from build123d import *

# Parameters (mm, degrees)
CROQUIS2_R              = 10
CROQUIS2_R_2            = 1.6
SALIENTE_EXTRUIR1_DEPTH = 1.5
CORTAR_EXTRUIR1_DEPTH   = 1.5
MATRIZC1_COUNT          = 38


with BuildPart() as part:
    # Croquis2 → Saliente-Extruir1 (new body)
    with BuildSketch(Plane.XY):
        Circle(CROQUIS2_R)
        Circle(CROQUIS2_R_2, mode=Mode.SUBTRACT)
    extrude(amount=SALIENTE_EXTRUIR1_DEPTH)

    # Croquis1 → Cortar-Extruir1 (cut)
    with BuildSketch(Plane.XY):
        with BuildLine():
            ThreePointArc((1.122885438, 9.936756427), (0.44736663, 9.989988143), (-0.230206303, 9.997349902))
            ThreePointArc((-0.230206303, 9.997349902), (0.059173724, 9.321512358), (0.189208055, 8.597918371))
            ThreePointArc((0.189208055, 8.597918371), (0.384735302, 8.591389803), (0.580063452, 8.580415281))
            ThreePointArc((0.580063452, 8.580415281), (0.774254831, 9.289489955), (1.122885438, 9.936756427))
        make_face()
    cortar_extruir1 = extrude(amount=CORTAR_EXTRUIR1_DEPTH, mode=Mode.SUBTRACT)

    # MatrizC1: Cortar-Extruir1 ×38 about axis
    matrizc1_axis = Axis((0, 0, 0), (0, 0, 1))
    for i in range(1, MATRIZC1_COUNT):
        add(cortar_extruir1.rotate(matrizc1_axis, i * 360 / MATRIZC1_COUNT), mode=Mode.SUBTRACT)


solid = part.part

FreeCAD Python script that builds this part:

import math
import FreeCAD as App
import Part
import Sketcher

V = App.Vector

doc = App.newDocument("Part")
body = doc.addObject("PartDesign::Body", "Body")

# Sketch on XY plane
sketch1 = body.newObject("Sketcher::SketchObject", "Sketch")
sketch1.AttachmentSupport = (doc.getObject("XY_Plane"), [""])
sketch1.MapMode = "FlatFace"
sketch1.addGeometry([
    Part.Circle(V(0, 0, 0), V(0, 0, 1), 10),
    Part.Circle(V(0, 0, 0), V(0, 0, 1), 1.6),
], False)
sketch1.addConstraint([
    Sketcher.Constraint("Coincident", 0, 3, -1, 1),
    Sketcher.Constraint("Coincident", 1, 3, -1, 1),
    Sketcher.Constraint("Diameter", 0, 20.0),
    Sketcher.Constraint("Diameter", 1, 3.2),
])
pad1 = body.newObject("PartDesign::Pad", "Pad")
pad1.Profile = sketch1
pad1.Length = 1.5

# Sketch on XY plane
sketch2 = body.newObject("Sketcher::SketchObject", "Sketch001")
sketch2.AttachmentSupport = (doc.getObject("XY_Plane"), [""])
sketch2.MapMode = "FlatFace"
sketch2.addGeometry([
    Part.ArcOfCircle(Part.Circle(V(0, 0, 0), V(0, 0, 1), 10), math.radians(83.552743), math.radians(91.319101)),
    Part.ArcOfCircle(Part.Circle(V(-3.053241, 8.388711, 0), V(0, 0, 1), 3.249191), math.radians(3.691685), math.radians(29.675617)),
    Part.ArcOfCircle(Part.Circle(V(0, -0.000001, 0), V(0, 0, 1), 8.600001), math.radians(86.132507), math.radians(88.739337)),
    Part.ArcOfCircle(Part.Circle(V(3.790834, 8.082223, 0), V(0, 0, 1), 3.249191), math.radians(145.196227), math.radians(171.180159)),
], False)
sketch2.addConstraint([
    Sketcher.Constraint("Coincident", 0, 2, 1, 2),
    Sketcher.Constraint("Coincident", 1, 1, 2, 2),
    Sketcher.Constraint("Coincident", 2, 1, 3, 2),
    Sketcher.Constraint("Coincident", 3, 1, 0, 1),
    Sketcher.Constraint("Coincident", 0, 3, -1, 1),
    Sketcher.Constraint("Coincident", 2, 3, -1, 1),
    Sketcher.Constraint("Equal", 1, 3),
    Sketcher.Constraint("Radius", 0, 10.0),
    Sketcher.Constraint("Radius", 2, 8.600001),
    Sketcher.Constraint("Radius", 1, 3.249191),
    Sketcher.Constraint("DistanceX", 1, 3, -1, 1, 3.053241),
    Sketcher.Constraint("DistanceY", -1, 1, 1, 3, 8.388711),
    Sketcher.Constraint("DistanceX", 0, 2, 3, 3, 4.021041),
    Sketcher.Constraint("DistanceX", 0, 2, 2, 1, 0.81027),
])
pocket1 = body.newObject("PartDesign::Pocket", "Pocket")
pocket1.Profile = sketch2
pocket1.Length = 1.5
pocket1.Reversed = True
doc.recompute()

polarpattern = body.newObject("PartDesign::PolarPattern", "PolarPattern")
polarpattern.Originals = [pocket1]
polarpattern.Axis = (doc.getObject("Z_Axis"), [""])
polarpattern.Angle = 360
polarpattern.Occurrences = 38
body.Tip = polarpattern

doc.recompute()
